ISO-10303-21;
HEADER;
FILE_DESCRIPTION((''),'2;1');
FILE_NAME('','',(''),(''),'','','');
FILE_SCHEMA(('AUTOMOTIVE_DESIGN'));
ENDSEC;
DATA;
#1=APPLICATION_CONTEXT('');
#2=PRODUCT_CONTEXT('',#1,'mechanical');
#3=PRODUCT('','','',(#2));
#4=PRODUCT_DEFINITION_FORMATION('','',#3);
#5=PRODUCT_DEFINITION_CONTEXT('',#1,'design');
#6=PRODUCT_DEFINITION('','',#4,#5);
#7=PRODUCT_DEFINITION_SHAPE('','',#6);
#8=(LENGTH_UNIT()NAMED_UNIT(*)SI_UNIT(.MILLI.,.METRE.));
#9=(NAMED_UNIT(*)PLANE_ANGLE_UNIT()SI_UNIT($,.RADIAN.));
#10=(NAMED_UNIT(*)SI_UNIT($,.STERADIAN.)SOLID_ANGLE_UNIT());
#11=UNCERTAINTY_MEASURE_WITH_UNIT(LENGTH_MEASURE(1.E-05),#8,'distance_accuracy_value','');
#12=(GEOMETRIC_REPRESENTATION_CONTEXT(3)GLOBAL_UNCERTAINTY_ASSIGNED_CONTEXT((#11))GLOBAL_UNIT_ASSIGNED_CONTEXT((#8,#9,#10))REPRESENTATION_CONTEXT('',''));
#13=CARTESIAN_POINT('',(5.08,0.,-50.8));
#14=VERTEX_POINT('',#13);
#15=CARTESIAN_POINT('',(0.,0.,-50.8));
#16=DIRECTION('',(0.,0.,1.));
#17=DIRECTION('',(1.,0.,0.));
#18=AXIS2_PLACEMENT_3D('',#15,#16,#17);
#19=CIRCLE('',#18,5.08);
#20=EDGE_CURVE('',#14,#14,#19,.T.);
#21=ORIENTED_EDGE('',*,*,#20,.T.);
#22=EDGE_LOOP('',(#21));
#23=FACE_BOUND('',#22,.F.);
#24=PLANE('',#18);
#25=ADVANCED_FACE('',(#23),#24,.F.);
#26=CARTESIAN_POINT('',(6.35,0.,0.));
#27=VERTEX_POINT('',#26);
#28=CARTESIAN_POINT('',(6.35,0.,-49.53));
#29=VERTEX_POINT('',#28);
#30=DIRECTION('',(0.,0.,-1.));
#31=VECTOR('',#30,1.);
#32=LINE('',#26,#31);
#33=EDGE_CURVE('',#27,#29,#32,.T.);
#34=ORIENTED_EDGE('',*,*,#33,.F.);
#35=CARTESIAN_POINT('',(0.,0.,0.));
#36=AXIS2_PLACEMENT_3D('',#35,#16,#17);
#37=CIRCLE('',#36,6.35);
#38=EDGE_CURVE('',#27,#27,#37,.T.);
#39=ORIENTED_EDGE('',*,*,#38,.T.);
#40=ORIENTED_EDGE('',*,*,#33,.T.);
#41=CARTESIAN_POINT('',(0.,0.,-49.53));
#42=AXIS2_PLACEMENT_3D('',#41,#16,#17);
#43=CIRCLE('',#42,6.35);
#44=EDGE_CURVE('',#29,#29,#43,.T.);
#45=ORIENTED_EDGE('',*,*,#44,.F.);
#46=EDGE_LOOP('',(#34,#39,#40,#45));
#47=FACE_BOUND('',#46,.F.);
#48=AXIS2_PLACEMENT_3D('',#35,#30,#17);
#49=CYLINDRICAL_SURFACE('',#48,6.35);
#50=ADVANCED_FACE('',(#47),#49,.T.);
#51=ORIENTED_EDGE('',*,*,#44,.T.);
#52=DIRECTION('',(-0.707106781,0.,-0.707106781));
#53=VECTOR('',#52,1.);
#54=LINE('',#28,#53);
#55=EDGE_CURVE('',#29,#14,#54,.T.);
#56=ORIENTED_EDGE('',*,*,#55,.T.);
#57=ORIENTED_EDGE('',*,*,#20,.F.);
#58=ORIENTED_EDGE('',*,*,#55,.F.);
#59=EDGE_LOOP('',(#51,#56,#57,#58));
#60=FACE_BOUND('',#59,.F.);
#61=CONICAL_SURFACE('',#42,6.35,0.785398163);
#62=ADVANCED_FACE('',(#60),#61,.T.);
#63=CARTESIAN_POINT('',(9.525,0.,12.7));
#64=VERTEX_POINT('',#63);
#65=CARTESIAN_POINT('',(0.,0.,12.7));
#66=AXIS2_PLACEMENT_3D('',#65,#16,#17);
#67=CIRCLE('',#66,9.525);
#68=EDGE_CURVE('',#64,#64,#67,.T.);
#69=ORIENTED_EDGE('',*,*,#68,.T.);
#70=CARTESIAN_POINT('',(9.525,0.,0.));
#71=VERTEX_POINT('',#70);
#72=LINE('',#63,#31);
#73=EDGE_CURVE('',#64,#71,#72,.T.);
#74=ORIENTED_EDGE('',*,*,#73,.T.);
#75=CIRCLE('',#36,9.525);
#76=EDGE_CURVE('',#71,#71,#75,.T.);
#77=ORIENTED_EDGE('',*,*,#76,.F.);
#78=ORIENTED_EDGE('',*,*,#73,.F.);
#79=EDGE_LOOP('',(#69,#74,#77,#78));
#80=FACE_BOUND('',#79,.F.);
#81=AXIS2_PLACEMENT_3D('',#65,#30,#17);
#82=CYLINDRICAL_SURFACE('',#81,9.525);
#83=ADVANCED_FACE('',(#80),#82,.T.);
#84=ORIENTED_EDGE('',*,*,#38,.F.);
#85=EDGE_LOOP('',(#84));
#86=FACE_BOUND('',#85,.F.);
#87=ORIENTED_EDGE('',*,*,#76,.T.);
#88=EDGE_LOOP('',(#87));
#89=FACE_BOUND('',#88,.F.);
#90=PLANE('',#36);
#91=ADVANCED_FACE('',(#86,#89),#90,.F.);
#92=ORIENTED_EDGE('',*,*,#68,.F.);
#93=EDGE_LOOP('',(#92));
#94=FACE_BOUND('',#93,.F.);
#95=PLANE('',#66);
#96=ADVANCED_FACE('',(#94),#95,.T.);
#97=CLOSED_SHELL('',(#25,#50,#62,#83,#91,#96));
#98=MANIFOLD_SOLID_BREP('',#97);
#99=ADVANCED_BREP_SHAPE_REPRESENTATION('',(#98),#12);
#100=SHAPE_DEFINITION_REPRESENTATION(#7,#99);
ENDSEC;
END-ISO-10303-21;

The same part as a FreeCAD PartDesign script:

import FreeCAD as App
import Part
import Sketcher
Q = App.Units.Quantity

doc = App.newDocument("Part")
params = doc.addObject("Spreadsheet::Sheet", "Params")
for row, (alias, value) in enumerate([
    ("sketch1_height", "0.5 in"),
    ("sketch1_width", "0.375 in"),
    ("revolution_angle", "360 deg"),
], start=1):
    params.set(f"A{row}", alias)
    params.set(f"B{row}", "=" + value)
    params.setAlias(f"B{row}", alias)

body = doc.addObject("PartDesign::Body", "Body")

sketch1 = body.newObject("Sketcher::SketchObject", "Sketch")
sketch1.AttachmentSupport = (doc.getObject("XZ_Plane"), [""])
sketch1.MapMode = "FlatFace"
sketch1.addGeometry(Part.LineSegment(App.Vector(0, -50.8, 0), App.Vector(0, 12.7, 0)), False)
sketch1.addGeometry(Part.LineSegment(App.Vector(0, 12.7, 0), App.Vector(9.5, 12.7, 0)), False)
sketch1.addGeometry(Part.LineSegment(App.Vector(9.5, 12.7, 0), App.Vector(9.5, 0, 0)), False)
sketch1.addGeometry(Part.LineSegment(App.Vector(9.5, 0, 0), App.Vector(6.3, 0, 0)), False)
sketch1.addGeometry(Part.LineSegment(App.Vector(6.3, 0, 0), App.Vector(6.3, -49.5, 0)), False)
sketch1.addGeometry(Part.LineSegment(App.Vector(6.3, -49.5, 0), App.Vector(5.1, -50.8, 0)), False)
sketch1.addGeometry(Part.LineSegment(App.Vector(5.1, -50.8, 0), App.Vector(0, -50.8, 0)), False)
sketch1.addConstraint(Sketcher.Constraint("Coincident", 0, 2, 1, 1))
sketch1.addConstraint(Sketcher.Constraint("Coincident", 1, 2, 2, 1))
sketch1.addConstraint(Sketcher.Constraint("Coincident", 2, 2, 3, 1))
sketch1.addConstraint(Sketcher.Constraint("Coincident", 3, 2, 4, 1))
sketch1.addConstraint(Sketcher.Constraint("Coincident", 4, 2, 5, 1))
sketch1.addConstraint(Sketcher.Constraint("Coincident", 5, 2, 6, 1))
sketch1.addConstraint(Sketcher.Constraint("Coincident", 6, 2, 0, 1))
sketch1.addConstraint(Sketcher.Constraint("Vertical", 0))
sketch1.addConstraint(Sketcher.Constraint("Horizontal", 1))
sketch1.addConstraint(Sketcher.Constraint("Vertical", 2))
sketch1.addConstraint(Sketcher.Constraint("Horizontal", 3))
sketch1.addConstraint(Sketcher.Constraint("Vertical", 4))
sketch1.addConstraint(Sketcher.Constraint("Horizontal", 6))
sketch1.addConstraint(Sketcher.Constraint("PointOnObject", 0, 2, -2))
sketch1.addConstraint(Sketcher.Constraint("PointOnObject", 2, 2, -1))
sketch1.addConstraint(Sketcher.Constraint("DistanceY", 2, 2, 2, 1, Q("0.5 in")))
sketch1.addConstraint(Sketcher.Constraint("DistanceY", 5, 2, -1, 1, Q("2 in")))
sketch1.addConstraint(Sketcher.Constraint("DistanceX", 1, 1, 1, 2, Q("0.375 in")))
sketch1.addConstraint(Sketcher.Constraint("DistanceX", -1, 1, 3, 2, Q("0.25 in")))
sketch1.addConstraint(Sketcher.Constraint("DistanceX", 5, 2, 4, 2, Q("0.05 in")))
sketch1.addConstraint(Sketcher.Constraint("DistanceY", 5, 2, 4, 2, Q("0.05 in")))
sketch1.setExpression("Constraints[15]", "Params.sketch1_height")
sketch1.setExpression("Constraints[17]", "Params.sketch1_width")
revolution = body.newObject("PartDesign::Revolution", "Revolution")
revolution.Profile = sketch1
revolution.ReferenceAxis = (sketch1, ["V_Axis"])
revolution.setExpression("Angle", "Params.revolution_angle")

doc.recompute()
